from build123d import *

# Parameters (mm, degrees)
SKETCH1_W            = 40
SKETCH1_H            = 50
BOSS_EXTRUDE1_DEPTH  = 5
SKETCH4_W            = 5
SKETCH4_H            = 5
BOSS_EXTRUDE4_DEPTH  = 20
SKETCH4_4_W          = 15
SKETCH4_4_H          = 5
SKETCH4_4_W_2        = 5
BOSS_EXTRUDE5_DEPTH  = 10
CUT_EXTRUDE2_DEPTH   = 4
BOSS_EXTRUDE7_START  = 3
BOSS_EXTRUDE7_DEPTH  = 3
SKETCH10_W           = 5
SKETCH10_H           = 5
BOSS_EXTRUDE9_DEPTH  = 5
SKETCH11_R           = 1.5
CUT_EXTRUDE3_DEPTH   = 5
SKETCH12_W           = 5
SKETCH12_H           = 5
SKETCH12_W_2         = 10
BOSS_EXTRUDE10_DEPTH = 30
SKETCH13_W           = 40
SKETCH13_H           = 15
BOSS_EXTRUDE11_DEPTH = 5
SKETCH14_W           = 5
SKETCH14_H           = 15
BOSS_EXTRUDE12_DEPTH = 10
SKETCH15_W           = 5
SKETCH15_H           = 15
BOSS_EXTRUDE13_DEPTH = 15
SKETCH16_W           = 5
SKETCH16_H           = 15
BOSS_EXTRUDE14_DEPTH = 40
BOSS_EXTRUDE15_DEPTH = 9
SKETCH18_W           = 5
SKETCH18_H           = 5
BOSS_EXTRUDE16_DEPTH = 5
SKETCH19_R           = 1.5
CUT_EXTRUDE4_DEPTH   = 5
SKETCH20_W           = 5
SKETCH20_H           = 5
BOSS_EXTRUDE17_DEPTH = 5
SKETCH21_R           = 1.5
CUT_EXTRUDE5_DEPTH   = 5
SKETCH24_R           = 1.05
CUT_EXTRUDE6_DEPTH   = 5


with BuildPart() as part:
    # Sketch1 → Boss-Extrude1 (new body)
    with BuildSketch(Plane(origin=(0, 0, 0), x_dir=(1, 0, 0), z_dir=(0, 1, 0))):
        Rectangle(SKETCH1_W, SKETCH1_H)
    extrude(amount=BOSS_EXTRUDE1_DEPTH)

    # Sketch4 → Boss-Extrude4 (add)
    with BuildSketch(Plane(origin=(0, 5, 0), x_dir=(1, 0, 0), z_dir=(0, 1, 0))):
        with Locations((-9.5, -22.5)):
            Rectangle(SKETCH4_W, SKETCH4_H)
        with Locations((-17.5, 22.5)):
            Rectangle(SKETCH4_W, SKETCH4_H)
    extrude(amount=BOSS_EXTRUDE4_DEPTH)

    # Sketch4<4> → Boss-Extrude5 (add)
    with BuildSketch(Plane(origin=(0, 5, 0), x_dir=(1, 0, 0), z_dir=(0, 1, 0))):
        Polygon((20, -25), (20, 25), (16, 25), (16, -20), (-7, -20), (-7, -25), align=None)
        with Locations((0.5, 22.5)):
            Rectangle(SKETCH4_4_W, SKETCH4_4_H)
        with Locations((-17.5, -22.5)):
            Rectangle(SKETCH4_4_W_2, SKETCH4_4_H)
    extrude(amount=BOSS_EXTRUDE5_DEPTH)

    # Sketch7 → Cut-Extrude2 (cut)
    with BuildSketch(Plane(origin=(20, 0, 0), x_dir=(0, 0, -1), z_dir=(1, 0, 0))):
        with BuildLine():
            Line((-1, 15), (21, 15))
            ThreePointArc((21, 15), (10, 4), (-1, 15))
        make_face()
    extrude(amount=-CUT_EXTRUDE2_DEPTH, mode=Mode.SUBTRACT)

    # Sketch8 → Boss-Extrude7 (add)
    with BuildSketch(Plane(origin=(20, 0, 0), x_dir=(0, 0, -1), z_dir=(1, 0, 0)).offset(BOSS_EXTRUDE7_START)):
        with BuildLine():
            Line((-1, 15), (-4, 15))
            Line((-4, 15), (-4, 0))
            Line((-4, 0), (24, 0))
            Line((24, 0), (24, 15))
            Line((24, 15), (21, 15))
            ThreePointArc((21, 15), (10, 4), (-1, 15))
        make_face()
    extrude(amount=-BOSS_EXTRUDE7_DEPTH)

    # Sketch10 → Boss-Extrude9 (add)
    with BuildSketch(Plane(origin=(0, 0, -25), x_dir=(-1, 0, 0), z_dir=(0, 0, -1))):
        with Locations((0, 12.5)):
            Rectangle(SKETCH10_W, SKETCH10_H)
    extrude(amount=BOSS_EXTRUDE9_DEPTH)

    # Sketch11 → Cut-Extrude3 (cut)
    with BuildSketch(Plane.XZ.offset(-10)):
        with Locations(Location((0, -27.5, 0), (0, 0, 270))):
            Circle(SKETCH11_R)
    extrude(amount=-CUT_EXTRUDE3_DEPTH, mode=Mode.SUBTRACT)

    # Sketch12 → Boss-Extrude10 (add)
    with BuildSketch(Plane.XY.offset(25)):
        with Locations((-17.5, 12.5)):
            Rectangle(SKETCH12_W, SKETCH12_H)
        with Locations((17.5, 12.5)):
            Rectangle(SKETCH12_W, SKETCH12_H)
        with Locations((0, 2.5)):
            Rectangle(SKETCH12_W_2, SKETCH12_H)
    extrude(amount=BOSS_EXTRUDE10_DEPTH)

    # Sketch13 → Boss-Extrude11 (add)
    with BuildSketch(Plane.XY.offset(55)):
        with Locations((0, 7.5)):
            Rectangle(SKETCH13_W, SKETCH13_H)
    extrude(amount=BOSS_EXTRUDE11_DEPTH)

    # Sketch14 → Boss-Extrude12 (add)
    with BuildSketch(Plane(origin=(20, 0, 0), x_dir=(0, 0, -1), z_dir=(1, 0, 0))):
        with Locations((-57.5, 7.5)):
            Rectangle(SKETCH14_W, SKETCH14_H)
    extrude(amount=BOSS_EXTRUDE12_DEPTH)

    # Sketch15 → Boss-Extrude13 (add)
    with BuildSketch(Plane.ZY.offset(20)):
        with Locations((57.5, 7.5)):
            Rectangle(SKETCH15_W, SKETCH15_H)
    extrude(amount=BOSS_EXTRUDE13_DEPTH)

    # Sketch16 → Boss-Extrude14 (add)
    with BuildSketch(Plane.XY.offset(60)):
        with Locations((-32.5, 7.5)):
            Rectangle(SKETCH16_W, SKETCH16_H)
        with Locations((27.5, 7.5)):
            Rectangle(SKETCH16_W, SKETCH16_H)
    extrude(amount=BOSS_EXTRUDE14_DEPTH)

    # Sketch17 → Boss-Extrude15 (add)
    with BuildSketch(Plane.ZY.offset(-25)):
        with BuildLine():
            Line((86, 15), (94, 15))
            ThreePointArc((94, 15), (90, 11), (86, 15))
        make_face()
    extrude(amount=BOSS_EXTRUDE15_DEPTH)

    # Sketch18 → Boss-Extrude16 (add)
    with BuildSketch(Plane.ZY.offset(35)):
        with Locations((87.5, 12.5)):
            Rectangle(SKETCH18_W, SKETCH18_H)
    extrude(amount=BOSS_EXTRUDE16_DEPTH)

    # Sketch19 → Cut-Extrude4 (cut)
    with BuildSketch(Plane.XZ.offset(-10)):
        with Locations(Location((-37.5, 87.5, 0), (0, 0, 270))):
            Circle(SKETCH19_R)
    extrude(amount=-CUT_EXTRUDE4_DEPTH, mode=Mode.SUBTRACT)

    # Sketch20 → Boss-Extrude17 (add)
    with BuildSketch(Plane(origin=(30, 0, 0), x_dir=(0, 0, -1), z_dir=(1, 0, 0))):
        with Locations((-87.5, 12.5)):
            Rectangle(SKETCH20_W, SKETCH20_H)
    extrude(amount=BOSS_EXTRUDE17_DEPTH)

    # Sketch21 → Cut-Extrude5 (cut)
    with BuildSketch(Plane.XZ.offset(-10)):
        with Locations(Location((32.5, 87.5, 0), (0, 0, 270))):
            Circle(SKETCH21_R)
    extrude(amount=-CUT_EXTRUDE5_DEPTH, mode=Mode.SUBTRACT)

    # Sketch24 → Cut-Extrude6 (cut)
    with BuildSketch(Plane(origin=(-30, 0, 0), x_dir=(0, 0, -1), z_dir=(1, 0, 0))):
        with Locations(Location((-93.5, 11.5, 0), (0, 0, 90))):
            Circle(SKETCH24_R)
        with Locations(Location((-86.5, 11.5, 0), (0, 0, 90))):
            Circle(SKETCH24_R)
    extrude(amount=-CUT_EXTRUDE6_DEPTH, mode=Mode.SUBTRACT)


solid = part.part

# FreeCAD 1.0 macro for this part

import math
import FreeCAD as App
import Part
import Sketcher


def add_polygon(sketch, points):
    """Adds a closed chain of lines whose ends are joined by coincident constraints."""
    first, n = sketch.GeometryCount, len(points)
    for a, b in zip(points, points[1:] + points[:1]):
        sketch.addGeometry(Part.LineSegment(App.Vector(*a, 0), App.Vector(*b, 0)), False)
    for i in range(n):
        sketch.addConstraint(Sketcher.Constraint("Coincident", first + i, 2, first + (i + 1) % n, 1))

doc = App.newDocument("Part")
body = doc.addObject("PartDesign::Body", "Body")

sketch1 = body.newObject("Sketcher::SketchObject", "Sketch")
sketch1.AttachmentSupport = (doc.getObject("XZ_Plane"), [""])
sketch1.MapMode = "FlatFace"
add_polygon(sketch1, [(-20, -25), (-20, 25), (20, 25), (20, -25)])
sketch1.addConstraint([
    Sketcher.Constraint("Vertical", 0),
    Sketcher.Constraint("Horizontal", 1),
    Sketcher.Constraint("Vertical", 2),
    Sketcher.Constraint("Horizontal", 3),
    Sketcher.Constraint("Symmetric", 0, 2, 2, 2, -1, 1),
    Sketcher.Constraint("DistanceX", 1, 1, 1, 2, 40.0),
    Sketcher.Constraint("DistanceY", 0, 1, 0, 2, 50.0),
])
pad1 = body.newObject("PartDesign::Pad", "Pad")
pad1.Profile = sketch1
pad1.Length = 5
pad1.Reversed = True

sketch2 = body.newObject("Sketcher::SketchObject", "Sketch001")
sketch2.AttachmentSupport = (doc.getObject("XZ_Plane"), [""])
sketch2.MapMode = "FlatFace"
sketch2.AttachmentOffset = App.Placement(App.Vector(0, 0, -5), App.Rotation())
add_polygon(sketch2, [(-12, 20), (-12, 25), (-7, 25), (-7, 20)])
add_polygon(sketch2, [(-20, -25), (-20, -20), (-15, -20), (-15, -25)])
sketch2.addConstraint([
    Sketcher.Constraint("Vertical", 0),
    Sketcher.Constraint("Horizontal", 1),
    Sketcher.Constraint("Vertical", 2),
    Sketcher.Constraint("Horizontal", 3),
    Sketcher.Constraint("Vertical", 4),
    Sketcher.Constraint("Horizontal", 5),
    Sketcher.Constraint("Vertical", 6),
    Sketcher.Constraint("Horizontal", 7),
    Sketcher.Constraint("Equal", 3, 5),
    Sketcher.Constraint("Equal", 7, 0),
    Sketcher.Constraint("Equal", 2, 4),
    Sketcher.Constraint("DistanceX", 1, 1, 1, 2, 5.0),
    Sketcher.Constraint("DistanceX", 0, 2, -1, 1, 12.0),
    Sketcher.Constraint("DistanceY", -1, 1, 0, 2, 25.0),
    Sketcher.Constraint("DistanceX", 4, 2, -1, 1, 20.0),
    Sketcher.Constraint("DistanceY", 4, 2, -1, 1, 20.0),
])
pad2 = body.newObject("PartDesign::Pad", "Pad001")
pad2.Profile = sketch2
pad2.Length = 20
pad2.Reversed = True

sketch3 = body.newObject("Sketcher::SketchObject", "Sketch002")
sketch3.AttachmentSupport = (doc.getObject("XZ_Plane"), [""])
sketch3.MapMode = "FlatFace"
sketch3.AttachmentOffset = App.Placement(App.Vector(0, 0, -5), App.Rotation())
add_polygon(sketch3, [(20, 25), (20, -25), (16, -25), (16, 20), (-7, 20), (-7, 25)])
add_polygon(sketch3, [(-7, -25), (-7, -20), (8, -20), (8, -25)])
add_polygon(sketch3, [(-20, 20), (-20, 25), (-15, 25), (-15, 20)])
sketch3.addConstraint([
    Sketcher.Constraint("Vertical", 0),
    Sketcher.Constraint("Horizontal", 1),
    Sketcher.Constraint("Vertical", 2),
    Sketcher.Constraint("Horizontal", 3),
    Sketcher.Constraint("Vertical", 4),
    Sketcher.Constraint("Horizontal", 5),
    Sketcher.Constraint("Vertical", 6),
    Sketcher.Constraint("Horizontal", 7),
    Sketcher.Constraint("Vertical", 8),
    Sketcher.Constraint("Horizontal", 9),
    Sketcher.Constraint("Vertical", 10),
    Sketcher.Constraint("Horizontal", 11),
    Sketcher.Constraint("Vertical", 12),
    Sketcher.Constraint("Horizontal", 13),
    Sketcher.Constraint("Symmetric", 0, 2, 10, 2, -1, 1),
    Sketcher.Constraint("Symmetric", 3, 2, 6, 2, -1),
    Sketcher.Constraint("Horizontal", 1, 2, 8, 2),
    Sketcher.Constraint("Horizontal", 5, 2, 10, 2),
    Sketcher.Constraint("Horizontal", 3, 2, 12, 2),
    Sketcher.Constraint("Equal", 13, 4),
    Sketcher.Constraint("DistanceX", 1, 2, 1, 1, 4.0),
    Sketcher.Constraint("DistanceX", 3, 2, 3, 1, 23.0),
    Sketcher.Constraint("DistanceX", 7, 1, 7, 2, 15.0),
    Sketcher.Constraint("DistanceX", 11, 1, 11, 2, 5.0),
    Sketcher.Constraint("DistanceY", 0, 2, 0, 1, 50.0),
    Sketcher.Constraint("DistanceX", -1, 1, 0, 2, 20.0),
])
pad3 = body.newObject("PartDesign::Pad", "Pad002")
pad3.Profile = sketch3
pad3.Length = 10
pad3.Reversed = True

sketch4 = body.newObject("Sketcher::SketchObject", "Sketch003")
sketch4.AttachmentSupport = (doc.getObject("YZ_Plane"), [""])
sketch4.MapMode = "FlatFace"
sketch4.AttachmentOffset = App.Placement(App.Vector(0, 0, 20), App.Rotation())
sketch4.addGeometry([
    Part.LineSegment(App.Vector(15, -21, 0), App.Vector(15, 1, 0)),
    Part.ArcOfCircle(Part.Circle(App.Vector(15, -10, 0), App.Vector(0, 0, 1), 11), math.radians(90), math.radians(270)),
], False)
sketch4.addConstraint([
    Sketcher.Constraint("Coincident", 0, 1, 1, 2),
    Sketcher.Constraint("Coincident", 1, 1, 0, 2),
    Sketcher.Constraint("Vertical", 0),
    Sketcher.Constraint("Vertical", 1, 3, 0, 1),
    Sketcher.Constraint("Radius", 1, 11.0),
    Sketcher.Constraint("DistanceX", -1, 1, 1, 3, 15.0),
    Sketcher.Constraint("DistanceY", 1, 3, -1, 1, 10.0),
])
pocket1 = body.newObject("PartDesign::Pocket", "Pocket")
pocket1.Profile = sketch4
pocket1.Length = 4

sketch5 = body.newObject("Sketcher::SketchObject", "Sketch004")
sketch5.AttachmentSupport = (doc.getObject("YZ_Plane"), [""])
sketch5.MapMode = "FlatFace"
sketch5.AttachmentOffset = App.Placement(App.Vector(0, 0, 23), App.Rotation())
sketch5.addGeometry([
    Part.LineSegment(App.Vector(15, 1, 0), App.Vector(15, 4, 0)),
    Part.LineSegment(App.Vector(15, 4, 0), App.Vector(0, 4, 0)),
    Part.LineSegment(App.Vector(0, 4, 0), App.Vector(0, -24, 0)),
    Part.LineSegment(App.Vector(0, -24, 0), App.Vector(15, -24, 0)),
    Part.LineSegment(App.Vector(15, -24, 0), App.Vector(15, -21, 0)),
    Part.ArcOfCircle(Part.Circle(App.Vector(15, -10, 0), App.Vector(0, 0, 1), 11), math.radians(90), math.radians(270)),
], False)
sketch5.addConstraint([
    Sketcher.Constraint("Coincident", 0, 2, 1, 1),
    Sketcher.Constraint("Coincident", 1, 2, 2, 1),
    Sketcher.Constraint("Coincident", 2, 2, 3, 1),
    Sketcher.Constraint("Coincident", 3, 2, 4, 1),
    Sketcher.Constraint("Coincident", 4, 2, 5, 2),
    Sketcher.Constraint("Coincident", 5, 1, 0, 1),
    Sketcher.Constraint("Vertical", 0),
    Sketcher.Constraint("Horizontal", 1),
    Sketcher.Constraint("Vertical", 2),
    Sketcher.Constraint("Horizontal", 3),
    Sketcher.Constraint("Vertical", 4),
    Sketcher.Constraint("PointOnObject", 1, 2, -2),
    Sketcher.Constraint("Vertical", 5, 3, 0, 2),
    Sketcher.Constraint("Vertical", 0, 2, 3, 2),
    Sketcher.Constraint("Equal", 0, 4),
    Sketcher.Constraint("Radius", 5, 11.0),
    Sketcher.Constraint("DistanceX", 1, 2, 1, 1, 15.0),
    Sketcher.Constraint("DistanceY", 0, 1, 0, 2, 3.0),
    Sketcher.Constraint("DistanceY", 5, 3, -1, 1, 10.0),
])
pad4 = body.newObject("PartDesign::Pad", "Pad003")
pad4.Profile = sketch5
pad4.Length = 3
pad4.Reversed = True

sketch6 = body.newObject("Sketcher::SketchObject", "Sketch005")
sketch6.AttachmentSupport = (doc.getObject("XY_Plane"), [""])
sketch6.MapMode = "FlatFace"
sketch6.AttachmentOffset = App.Placement(App.Vector(0, 0, -25), App.Rotation())
add_polygon(sketch6, [(2, 15), (2, 10), (-2, 10), (-2, 15)])
sketch6.addConstraint([
    Sketcher.Constraint("Vertical", 0),
    Sketcher.Constraint("Horizontal", 1),
    Sketcher.Constraint("Vertical", 2),
    Sketcher.Constraint("Horizontal", 3),
    Sketcher.Constraint("Equal", 3, 0),
    Sketcher.Constraint("DistanceX", 1, 2, 1, 1, 5.0),
    Sketcher.Constraint("DistanceY", -1, 1, 0, 2, 10.0),
    Sketcher.Constraint("DistanceX", -1, 1, 0, 2, 2.5),
])
pad5 = body.newObject("PartDesign::Pad", "Pad004")
pad5.Profile = sketch6
pad5.Length = 5
pad5.Reversed = True

sketch7 = body.newObject("Sketcher::SketchObject", "Sketch006")
sketch7.AttachmentSupport = (doc.getObject("XZ_Plane"), [""])
sketch7.MapMode = "FlatFace"
sketch7.AttachmentOffset = App.Placement(App.Vector(0, 0, -10), App.Rotation())
sketch7.addGeometry(Part.Circle(App.Vector(0, -27.5, 0), App.Vector(0, 0, 1), 1.5), False)
sketch7.addConstraint([
    Sketcher.Constraint("PointOnObject", 0, 3, -2),
    Sketcher.Constraint("Diameter", 0, 3.0),
    Sketcher.Constraint("DistanceY", 0, 3, -1, 1, 27.5),
])
pocket2 = body.newObject("PartDesign::Pocket", "Pocket001")
pocket2.Profile = sketch7
pocket2.Length = 5

sketch8 = body.newObject("Sketcher::SketchObject", "Sketch007")
sketch8.AttachmentSupport = (doc.getObject("XY_Plane"), [""])
sketch8.MapMode = "FlatFace"
sketch8.AttachmentOffset = App.Placement(App.Vector(0, 0, 25), App.Rotation())
add_polygon(sketch8, [(-20, 15), (-20, 10), (-15, 10), (-15, 15)])
add_polygon(sketch8, [(15, 15), (15, 10), (20, 10), (20, 15)])
add_polygon(sketch8, [(-5, 5), (-5, 0), (5, 0), (5, 5)])
sketch8.addConstraint([
    Sketcher.Constraint("Vertical", 0),
    Sketcher.Constraint("Horizontal", 1),
    Sketcher.Constraint("Vertical", 2),
    Sketcher.Constraint("Horizontal", 3),
    Sketcher.Constraint("Vertical", 4),
    Sketcher.Constraint("Horizontal", 5),
    Sketcher.Constraint("Vertical", 6),
    Sketcher.Constraint("Horizontal", 7),
    Sketcher.Constraint("Vertical", 8),
    Sketcher.Constraint("Horizontal", 9),
    Sketcher.Constraint("Vertical", 10),
    Sketcher.Constraint("Horizontal", 11),
    Sketcher.Constraint("Symmetric", 8, 2, 9, 2, -1, 1),
    Sketcher.Constraint("Symmetric", 1, 2, 4, 2, -2),
    Sketcher.Constraint("Symmetric", 3, 2, 6, 2, -2),
    Sketcher.Constraint("Equal", 7, 0),
    Sketcher.Constraint("Equal", 6, 8),
    Sketcher.Constraint("DistanceX", 1, 1, 1, 2, 5.0),
    Sketcher.Constraint("DistanceX", 9, 1, 9, 2, 10.0),
    Sketcher.Constraint("DistanceX", 0, 2, -1, 1, 20.0),
    Sketcher.Constraint("DistanceY", -1, 1, 0, 2, 10.0),
])
pad6 = body.newObject("PartDesign::Pad", "Pad005")
pad6.Profile = sketch8
pad6.Length = 30

sketch9 = body.newObject("Sketcher::SketchObject", "Sketch008")
sketch9.AttachmentSupport = (doc.getObject("XY_Plane"), [""])
sketch9.MapMode = "FlatFace"
sketch9.AttachmentOffset = App.Placement(App.Vector(0, 0, 55), App.Rotation())
add_polygon(sketch9, [(-20, 15), (-20, 0), (20, 0), (20, 15)])
sketch9.addConstraint([
    Sketcher.Constraint("Vertical", 0),
    Sketcher.Constraint("Horizontal", 1),
    Sketcher.Constraint("Vertical", 2),
    Sketcher.Constraint("Horizontal", 3),
    Sketcher.Constraint("Symmetric", 0, 2, 1, 2, -1, 1),
    Sketcher.Constraint("DistanceX", 1, 1, 1, 2, 40.0),
    Sketcher.Constraint("DistanceY", 0, 2, 0, 1, 15.0),
])
pad7 = body.newObject("PartDesign::Pad", "Pad006")
pad7.Profile = sketch9
pad7.Length = 5

sketch10 = body.newObject("Sketcher::SketchObject", "Sketch009")
sketch10.AttachmentSupport = (doc.getObject("YZ_Plane"), [""])
sketch10.MapMode = "FlatFace"
sketch10.AttachmentOffset = App.Placement(App.Vector(0, 0, 20), App.Rotation())
add_polygon(sketch10, [(15, 60), (0, 60), (0, 55), (15, 55)])
sketch10.addConstraint([
    Sketcher.Constraint("Horizontal", 0),
    Sketcher.Constraint("Vertical", 1),
    Sketcher.Constraint("Horizontal", 2),
    Sketcher.Constraint("Vertical", 3),
    Sketcher.Constraint("PointOnObject", 0, 2, -2),
    Sketcher.Constraint("DistanceX", 0, 2, 0, 1, 15.0),
    Sketcher.Constraint("DistanceY", 1, 2, 1, 1, 5.0),
    Sketcher.Constraint("DistanceY", -1, 1, 0, 2, 60.0),
])
pad8 = body.newObject("PartDesign::Pad", "Pad007")
pad8.Profile = sketch10
pad8.Length = 10

sketch11 = body.newObject("Sketcher::SketchObject", "Sketch010")
sketch11.AttachmentSupport = (doc.getObject("YZ_Plane"), [""])
sketch11.MapMode = "FlatFace"
sketch11.AttachmentOffset = App.Placement(App.Vector(0, 0, -20), App.Rotation())
add_polygon(sketch11, [(15, 55), (0, 55), (0, 60), (15, 60)])
sketch11.addConstraint([
    Sketcher.Constraint("Horizontal", 0),
    Sketcher.Constraint("Vertical", 1),
    Sketcher.Constraint("Horizontal", 2),
    Sketcher.Constraint("Vertical", 3),
    Sketcher.Constraint("PointOnObject", 0, 2, -2),
    Sketcher.Constraint("DistanceX", 0, 2, 0, 1, 15.0),
    Sketcher.Constraint("DistanceY", 1, 1, 1, 2, 5.0),
    Sketcher.Constraint("DistanceY", -1, 1, 0, 2, 55.0),
])
pad9 = body.newObject("PartDesign::Pad", "Pad008")
pad9.Profile = sketch11
pad9.Length = 15
pad9.Reversed = True

sketch12 = body.newObject("Sketcher::SketchObject", "Sketch011")
sketch12.AttachmentSupport = (doc.getObject("XY_Plane"), [""])
sketch12.MapMode = "FlatFace"
sketch12.AttachmentOffset = App.Placement(App.Vector(0, 0, 60), App.Rotation())
add_polygon(sketch12, [(-35, 15), (-35, 0), (-30, 0), (-30, 15)])
add_polygon(sketch12, [(25, 15), (25, 0), (30, 0), (30, 15)])
sketch12.addConstraint([
    Sketcher.Constraint("Vertical", 0),
    Sketcher.Constraint("Horizontal", 1),
    Sketcher.Constraint("Vertical", 2),
    Sketcher.Constraint("Horizontal", 3),
    Sketcher.Constraint("Vertical", 4),
    Sketcher.Constraint("Horizontal", 5),
    Sketcher.Constraint("Vertical", 6),
    Sketcher.Constraint("Horizontal", 7),
    Sketcher.Constraint("Symmetric", 1, 2, 5, 2, -1, 1),
    Sketcher.Constraint("PointOnObject", 0, 2, -1),
    Sketcher.Constraint("Horizontal", 3, 2, 6, 2),
    Sketcher.Constraint("Equal", 3, 5),
    Sketcher.Constraint("DistanceX", 1, 1, 1, 2, 5.0),
    Sketcher.Constraint("DistanceY", 0, 2, 0, 1, 15.0),
    Sketcher.Constraint("DistanceX", 0, 2, -1, 1, 35.0),
])
pad10 = body.newObject("PartDesign::Pad", "Pad009")
pad10.Profile = sketch12
pad10.Length = 40

sketch13 = body.newObject("Sketcher::SketchObject", "Sketch012")
sketch13.AttachmentSupport = (doc.getObject("YZ_Plane"), [""])
sketch13.MapMode = "FlatFace"
sketch13.AttachmentOffset = App.Placement(App.Vector(0, 0, 25), App.Rotation())
sketch13.addGeometry([
    Part.LineSegment(App.Vector(15, 94, 0), App.Vector(15, 86, 0)),
    Part.ArcOfCircle(Part.Circle(App.Vector(15, 90, 0), App.Vector(0, 0, 1), 4), math.radians(90), math.radians(270)),
], False)
sketch13.addConstraint([
    Sketcher.Constraint("Coincident", 0, 1, 1, 1),
    Sketcher.Constraint("Coincident", 1, 2, 0, 2),
    Sketcher.Constraint("Vertical", 0),
    Sketcher.Constraint("Vertical", 1, 3, 0, 1),
    Sketcher.Constraint("Radius", 1, 4.0),
    Sketcher.Constraint("DistanceX", -1, 1, 1, 3, 15.0),
    Sketcher.Constraint("DistanceY", -1, 1, 1, 3, 90.0),
])
pad11 = body.newObject("PartDesign::Pad", "Pad010")
pad11.Profile = sketch13
pad11.Length = 9
pad11.Reversed = True

sketch14 = body.newObject("Sketcher::SketchObject", "Sketch013")
sketch14.AttachmentSupport = (doc.getObject("YZ_Plane"), [""])
sketch14.MapMode = "FlatFace"
sketch14.AttachmentOffset = App.Placement(App.Vector(0, 0, -35), App.Rotation())
add_polygon(sketch14, [(15, 85), (10, 85), (10, 90), (15, 90)])
sketch14.addConstraint([
    Sketcher.Constraint("Horizontal", 0),
    Sketcher.Constraint("Vertical", 1),
    Sketcher.Constraint("Horizontal", 2),
    Sketcher.Constraint("Vertical", 3),
    Sketcher.Constraint("Equal", 2, 1),
    Sketcher.Constraint("DistanceX", 0, 2, 0, 1, 5.0),
    Sketcher.Constraint("DistanceX", -1, 1, 0, 2, 10.0),
    Sketcher.Constraint("DistanceY", -1, 1, 0, 2, 85.0),
])
pad12 = body.newObject("PartDesign::Pad", "Pad011")
pad12.Profile = sketch14
pad12.Length = 5
pad12.Reversed = True

sketch15 = body.newObject("Sketcher::SketchObject", "Sketch014")
sketch15.AttachmentSupport = (doc.getObject("XZ_Plane"), [""])
sketch15.MapMode = "FlatFace"
sketch15.AttachmentOffset = App.Placement(App.Vector(0, 0, -10), App.Rotation())
sketch15.addGeometry(Part.Circle(App.Vector(-37.5, 87.5, 0), App.Vector(0, 0, 1), 1.5), False)
sketch15.addConstraint([
    Sketcher.Constraint("Diameter", 0, 3.0),
    Sketcher.Constraint("DistanceX", 0, 3, -1, 1, 37.5),
    Sketcher.Constraint("DistanceY", -1, 1, 0, 3, 87.5),
])
pocket3 = body.newObject("PartDesign::Pocket", "Pocket002")
pocket3.Profile = sketch15
pocket3.Length = 5

sketch16 = body.newObject("Sketcher::SketchObject", "Sketch015")
sketch16.AttachmentSupport = (doc.getObject("YZ_Plane"), [""])
sketch16.MapMode = "FlatFace"
sketch16.AttachmentOffset = App.Placement(App.Vector(0, 0, 30), App.Rotation())
add_polygon(sketch16, [(15, 90), (10, 90), (10, 85), (15, 85)])
sketch16.addConstraint([
    Sketcher.Constraint("Horizontal", 0),
    Sketcher.Constraint("Vertical", 1),
    Sketcher.Constraint("Horizontal", 2),
    Sketcher.Constraint("Vertical", 3),
    Sketcher.Constraint("Equal", 2, 1),
    Sketcher.Constraint("DistanceX", 0, 2, 0, 1, 5.0),
    Sketcher.Constraint("DistanceX", -1, 1, 0, 2, 10.0),
    Sketcher.Constraint("DistanceY", -1, 1, 0, 2, 90.0),
])
pad13 = body.newObject("PartDesign::Pad", "Pad012")
pad13.Profile = sketch16
pad13.Length = 5

sketch17 = body.newObject("Sketcher::SketchObject", "Sketch016")
sketch17.AttachmentSupport = (doc.getObject("XZ_Plane"), [""])
sketch17.MapMode = "FlatFace"
sketch17.AttachmentOffset = App.Placement(App.Vector(0, 0, -10), App.Rotation())
sketch17.addGeometry(Part.Circle(App.Vector(32.5, 87.5, 0), App.Vector(0, 0, 1), 1.5), False)
sketch17.addConstraint([
    Sketcher.Constraint("Diameter", 0, 3.0),
    Sketcher.Constraint("DistanceX", -1, 1, 0, 3, 32.5),
    Sketcher.Constraint("DistanceY", -1, 1, 0, 3, 87.5),
])
pocket4 = body.newObject("PartDesign::Pocket", "Pocket003")
pocket4.Profile = sketch17
pocket4.Length = 5

sketch18 = body.newObject("Sketcher::SketchObject", "Sketch017")
sketch18.AttachmentSupport = (doc.getObject("YZ_Plane"), [""])
sketch18.MapMode = "FlatFace"
sketch18.AttachmentOffset = App.Placement(App.Vector(0, 0, -30), App.Rotation())
sketch18.addGeometry([
    Part.Circle(App.Vector(11.5, 93.5, 0), App.Vector(0, 0, 1), 1.1),
    Part.Circle(App.Vector(11.5, 86.5, 0), App.Vector(0, 0, 1), 1.1),
], False)
sketch18.addConstraint([
    Sketcher.Constraint("Equal", 0, 1),
    Sketcher.Constraint("Vertical", 0, 3, 1, 3),
    Sketcher.Constraint("Diameter", 0, 2.1),
    Sketcher.Constraint("DistanceY", 1, 3, 0, 3, 7.0),
    Sketcher.Constraint("DistanceX", -1, 1, 0, 3, 11.5),
    Sketcher.Constraint("DistanceY", -1, 1, 0, 3, 93.5),
])
pocket5 = body.newObject("PartDesign::Pocket", "Pocket004")
pocket5.Profile = sketch18
pocket5.Length = 5

doc.recompute()
